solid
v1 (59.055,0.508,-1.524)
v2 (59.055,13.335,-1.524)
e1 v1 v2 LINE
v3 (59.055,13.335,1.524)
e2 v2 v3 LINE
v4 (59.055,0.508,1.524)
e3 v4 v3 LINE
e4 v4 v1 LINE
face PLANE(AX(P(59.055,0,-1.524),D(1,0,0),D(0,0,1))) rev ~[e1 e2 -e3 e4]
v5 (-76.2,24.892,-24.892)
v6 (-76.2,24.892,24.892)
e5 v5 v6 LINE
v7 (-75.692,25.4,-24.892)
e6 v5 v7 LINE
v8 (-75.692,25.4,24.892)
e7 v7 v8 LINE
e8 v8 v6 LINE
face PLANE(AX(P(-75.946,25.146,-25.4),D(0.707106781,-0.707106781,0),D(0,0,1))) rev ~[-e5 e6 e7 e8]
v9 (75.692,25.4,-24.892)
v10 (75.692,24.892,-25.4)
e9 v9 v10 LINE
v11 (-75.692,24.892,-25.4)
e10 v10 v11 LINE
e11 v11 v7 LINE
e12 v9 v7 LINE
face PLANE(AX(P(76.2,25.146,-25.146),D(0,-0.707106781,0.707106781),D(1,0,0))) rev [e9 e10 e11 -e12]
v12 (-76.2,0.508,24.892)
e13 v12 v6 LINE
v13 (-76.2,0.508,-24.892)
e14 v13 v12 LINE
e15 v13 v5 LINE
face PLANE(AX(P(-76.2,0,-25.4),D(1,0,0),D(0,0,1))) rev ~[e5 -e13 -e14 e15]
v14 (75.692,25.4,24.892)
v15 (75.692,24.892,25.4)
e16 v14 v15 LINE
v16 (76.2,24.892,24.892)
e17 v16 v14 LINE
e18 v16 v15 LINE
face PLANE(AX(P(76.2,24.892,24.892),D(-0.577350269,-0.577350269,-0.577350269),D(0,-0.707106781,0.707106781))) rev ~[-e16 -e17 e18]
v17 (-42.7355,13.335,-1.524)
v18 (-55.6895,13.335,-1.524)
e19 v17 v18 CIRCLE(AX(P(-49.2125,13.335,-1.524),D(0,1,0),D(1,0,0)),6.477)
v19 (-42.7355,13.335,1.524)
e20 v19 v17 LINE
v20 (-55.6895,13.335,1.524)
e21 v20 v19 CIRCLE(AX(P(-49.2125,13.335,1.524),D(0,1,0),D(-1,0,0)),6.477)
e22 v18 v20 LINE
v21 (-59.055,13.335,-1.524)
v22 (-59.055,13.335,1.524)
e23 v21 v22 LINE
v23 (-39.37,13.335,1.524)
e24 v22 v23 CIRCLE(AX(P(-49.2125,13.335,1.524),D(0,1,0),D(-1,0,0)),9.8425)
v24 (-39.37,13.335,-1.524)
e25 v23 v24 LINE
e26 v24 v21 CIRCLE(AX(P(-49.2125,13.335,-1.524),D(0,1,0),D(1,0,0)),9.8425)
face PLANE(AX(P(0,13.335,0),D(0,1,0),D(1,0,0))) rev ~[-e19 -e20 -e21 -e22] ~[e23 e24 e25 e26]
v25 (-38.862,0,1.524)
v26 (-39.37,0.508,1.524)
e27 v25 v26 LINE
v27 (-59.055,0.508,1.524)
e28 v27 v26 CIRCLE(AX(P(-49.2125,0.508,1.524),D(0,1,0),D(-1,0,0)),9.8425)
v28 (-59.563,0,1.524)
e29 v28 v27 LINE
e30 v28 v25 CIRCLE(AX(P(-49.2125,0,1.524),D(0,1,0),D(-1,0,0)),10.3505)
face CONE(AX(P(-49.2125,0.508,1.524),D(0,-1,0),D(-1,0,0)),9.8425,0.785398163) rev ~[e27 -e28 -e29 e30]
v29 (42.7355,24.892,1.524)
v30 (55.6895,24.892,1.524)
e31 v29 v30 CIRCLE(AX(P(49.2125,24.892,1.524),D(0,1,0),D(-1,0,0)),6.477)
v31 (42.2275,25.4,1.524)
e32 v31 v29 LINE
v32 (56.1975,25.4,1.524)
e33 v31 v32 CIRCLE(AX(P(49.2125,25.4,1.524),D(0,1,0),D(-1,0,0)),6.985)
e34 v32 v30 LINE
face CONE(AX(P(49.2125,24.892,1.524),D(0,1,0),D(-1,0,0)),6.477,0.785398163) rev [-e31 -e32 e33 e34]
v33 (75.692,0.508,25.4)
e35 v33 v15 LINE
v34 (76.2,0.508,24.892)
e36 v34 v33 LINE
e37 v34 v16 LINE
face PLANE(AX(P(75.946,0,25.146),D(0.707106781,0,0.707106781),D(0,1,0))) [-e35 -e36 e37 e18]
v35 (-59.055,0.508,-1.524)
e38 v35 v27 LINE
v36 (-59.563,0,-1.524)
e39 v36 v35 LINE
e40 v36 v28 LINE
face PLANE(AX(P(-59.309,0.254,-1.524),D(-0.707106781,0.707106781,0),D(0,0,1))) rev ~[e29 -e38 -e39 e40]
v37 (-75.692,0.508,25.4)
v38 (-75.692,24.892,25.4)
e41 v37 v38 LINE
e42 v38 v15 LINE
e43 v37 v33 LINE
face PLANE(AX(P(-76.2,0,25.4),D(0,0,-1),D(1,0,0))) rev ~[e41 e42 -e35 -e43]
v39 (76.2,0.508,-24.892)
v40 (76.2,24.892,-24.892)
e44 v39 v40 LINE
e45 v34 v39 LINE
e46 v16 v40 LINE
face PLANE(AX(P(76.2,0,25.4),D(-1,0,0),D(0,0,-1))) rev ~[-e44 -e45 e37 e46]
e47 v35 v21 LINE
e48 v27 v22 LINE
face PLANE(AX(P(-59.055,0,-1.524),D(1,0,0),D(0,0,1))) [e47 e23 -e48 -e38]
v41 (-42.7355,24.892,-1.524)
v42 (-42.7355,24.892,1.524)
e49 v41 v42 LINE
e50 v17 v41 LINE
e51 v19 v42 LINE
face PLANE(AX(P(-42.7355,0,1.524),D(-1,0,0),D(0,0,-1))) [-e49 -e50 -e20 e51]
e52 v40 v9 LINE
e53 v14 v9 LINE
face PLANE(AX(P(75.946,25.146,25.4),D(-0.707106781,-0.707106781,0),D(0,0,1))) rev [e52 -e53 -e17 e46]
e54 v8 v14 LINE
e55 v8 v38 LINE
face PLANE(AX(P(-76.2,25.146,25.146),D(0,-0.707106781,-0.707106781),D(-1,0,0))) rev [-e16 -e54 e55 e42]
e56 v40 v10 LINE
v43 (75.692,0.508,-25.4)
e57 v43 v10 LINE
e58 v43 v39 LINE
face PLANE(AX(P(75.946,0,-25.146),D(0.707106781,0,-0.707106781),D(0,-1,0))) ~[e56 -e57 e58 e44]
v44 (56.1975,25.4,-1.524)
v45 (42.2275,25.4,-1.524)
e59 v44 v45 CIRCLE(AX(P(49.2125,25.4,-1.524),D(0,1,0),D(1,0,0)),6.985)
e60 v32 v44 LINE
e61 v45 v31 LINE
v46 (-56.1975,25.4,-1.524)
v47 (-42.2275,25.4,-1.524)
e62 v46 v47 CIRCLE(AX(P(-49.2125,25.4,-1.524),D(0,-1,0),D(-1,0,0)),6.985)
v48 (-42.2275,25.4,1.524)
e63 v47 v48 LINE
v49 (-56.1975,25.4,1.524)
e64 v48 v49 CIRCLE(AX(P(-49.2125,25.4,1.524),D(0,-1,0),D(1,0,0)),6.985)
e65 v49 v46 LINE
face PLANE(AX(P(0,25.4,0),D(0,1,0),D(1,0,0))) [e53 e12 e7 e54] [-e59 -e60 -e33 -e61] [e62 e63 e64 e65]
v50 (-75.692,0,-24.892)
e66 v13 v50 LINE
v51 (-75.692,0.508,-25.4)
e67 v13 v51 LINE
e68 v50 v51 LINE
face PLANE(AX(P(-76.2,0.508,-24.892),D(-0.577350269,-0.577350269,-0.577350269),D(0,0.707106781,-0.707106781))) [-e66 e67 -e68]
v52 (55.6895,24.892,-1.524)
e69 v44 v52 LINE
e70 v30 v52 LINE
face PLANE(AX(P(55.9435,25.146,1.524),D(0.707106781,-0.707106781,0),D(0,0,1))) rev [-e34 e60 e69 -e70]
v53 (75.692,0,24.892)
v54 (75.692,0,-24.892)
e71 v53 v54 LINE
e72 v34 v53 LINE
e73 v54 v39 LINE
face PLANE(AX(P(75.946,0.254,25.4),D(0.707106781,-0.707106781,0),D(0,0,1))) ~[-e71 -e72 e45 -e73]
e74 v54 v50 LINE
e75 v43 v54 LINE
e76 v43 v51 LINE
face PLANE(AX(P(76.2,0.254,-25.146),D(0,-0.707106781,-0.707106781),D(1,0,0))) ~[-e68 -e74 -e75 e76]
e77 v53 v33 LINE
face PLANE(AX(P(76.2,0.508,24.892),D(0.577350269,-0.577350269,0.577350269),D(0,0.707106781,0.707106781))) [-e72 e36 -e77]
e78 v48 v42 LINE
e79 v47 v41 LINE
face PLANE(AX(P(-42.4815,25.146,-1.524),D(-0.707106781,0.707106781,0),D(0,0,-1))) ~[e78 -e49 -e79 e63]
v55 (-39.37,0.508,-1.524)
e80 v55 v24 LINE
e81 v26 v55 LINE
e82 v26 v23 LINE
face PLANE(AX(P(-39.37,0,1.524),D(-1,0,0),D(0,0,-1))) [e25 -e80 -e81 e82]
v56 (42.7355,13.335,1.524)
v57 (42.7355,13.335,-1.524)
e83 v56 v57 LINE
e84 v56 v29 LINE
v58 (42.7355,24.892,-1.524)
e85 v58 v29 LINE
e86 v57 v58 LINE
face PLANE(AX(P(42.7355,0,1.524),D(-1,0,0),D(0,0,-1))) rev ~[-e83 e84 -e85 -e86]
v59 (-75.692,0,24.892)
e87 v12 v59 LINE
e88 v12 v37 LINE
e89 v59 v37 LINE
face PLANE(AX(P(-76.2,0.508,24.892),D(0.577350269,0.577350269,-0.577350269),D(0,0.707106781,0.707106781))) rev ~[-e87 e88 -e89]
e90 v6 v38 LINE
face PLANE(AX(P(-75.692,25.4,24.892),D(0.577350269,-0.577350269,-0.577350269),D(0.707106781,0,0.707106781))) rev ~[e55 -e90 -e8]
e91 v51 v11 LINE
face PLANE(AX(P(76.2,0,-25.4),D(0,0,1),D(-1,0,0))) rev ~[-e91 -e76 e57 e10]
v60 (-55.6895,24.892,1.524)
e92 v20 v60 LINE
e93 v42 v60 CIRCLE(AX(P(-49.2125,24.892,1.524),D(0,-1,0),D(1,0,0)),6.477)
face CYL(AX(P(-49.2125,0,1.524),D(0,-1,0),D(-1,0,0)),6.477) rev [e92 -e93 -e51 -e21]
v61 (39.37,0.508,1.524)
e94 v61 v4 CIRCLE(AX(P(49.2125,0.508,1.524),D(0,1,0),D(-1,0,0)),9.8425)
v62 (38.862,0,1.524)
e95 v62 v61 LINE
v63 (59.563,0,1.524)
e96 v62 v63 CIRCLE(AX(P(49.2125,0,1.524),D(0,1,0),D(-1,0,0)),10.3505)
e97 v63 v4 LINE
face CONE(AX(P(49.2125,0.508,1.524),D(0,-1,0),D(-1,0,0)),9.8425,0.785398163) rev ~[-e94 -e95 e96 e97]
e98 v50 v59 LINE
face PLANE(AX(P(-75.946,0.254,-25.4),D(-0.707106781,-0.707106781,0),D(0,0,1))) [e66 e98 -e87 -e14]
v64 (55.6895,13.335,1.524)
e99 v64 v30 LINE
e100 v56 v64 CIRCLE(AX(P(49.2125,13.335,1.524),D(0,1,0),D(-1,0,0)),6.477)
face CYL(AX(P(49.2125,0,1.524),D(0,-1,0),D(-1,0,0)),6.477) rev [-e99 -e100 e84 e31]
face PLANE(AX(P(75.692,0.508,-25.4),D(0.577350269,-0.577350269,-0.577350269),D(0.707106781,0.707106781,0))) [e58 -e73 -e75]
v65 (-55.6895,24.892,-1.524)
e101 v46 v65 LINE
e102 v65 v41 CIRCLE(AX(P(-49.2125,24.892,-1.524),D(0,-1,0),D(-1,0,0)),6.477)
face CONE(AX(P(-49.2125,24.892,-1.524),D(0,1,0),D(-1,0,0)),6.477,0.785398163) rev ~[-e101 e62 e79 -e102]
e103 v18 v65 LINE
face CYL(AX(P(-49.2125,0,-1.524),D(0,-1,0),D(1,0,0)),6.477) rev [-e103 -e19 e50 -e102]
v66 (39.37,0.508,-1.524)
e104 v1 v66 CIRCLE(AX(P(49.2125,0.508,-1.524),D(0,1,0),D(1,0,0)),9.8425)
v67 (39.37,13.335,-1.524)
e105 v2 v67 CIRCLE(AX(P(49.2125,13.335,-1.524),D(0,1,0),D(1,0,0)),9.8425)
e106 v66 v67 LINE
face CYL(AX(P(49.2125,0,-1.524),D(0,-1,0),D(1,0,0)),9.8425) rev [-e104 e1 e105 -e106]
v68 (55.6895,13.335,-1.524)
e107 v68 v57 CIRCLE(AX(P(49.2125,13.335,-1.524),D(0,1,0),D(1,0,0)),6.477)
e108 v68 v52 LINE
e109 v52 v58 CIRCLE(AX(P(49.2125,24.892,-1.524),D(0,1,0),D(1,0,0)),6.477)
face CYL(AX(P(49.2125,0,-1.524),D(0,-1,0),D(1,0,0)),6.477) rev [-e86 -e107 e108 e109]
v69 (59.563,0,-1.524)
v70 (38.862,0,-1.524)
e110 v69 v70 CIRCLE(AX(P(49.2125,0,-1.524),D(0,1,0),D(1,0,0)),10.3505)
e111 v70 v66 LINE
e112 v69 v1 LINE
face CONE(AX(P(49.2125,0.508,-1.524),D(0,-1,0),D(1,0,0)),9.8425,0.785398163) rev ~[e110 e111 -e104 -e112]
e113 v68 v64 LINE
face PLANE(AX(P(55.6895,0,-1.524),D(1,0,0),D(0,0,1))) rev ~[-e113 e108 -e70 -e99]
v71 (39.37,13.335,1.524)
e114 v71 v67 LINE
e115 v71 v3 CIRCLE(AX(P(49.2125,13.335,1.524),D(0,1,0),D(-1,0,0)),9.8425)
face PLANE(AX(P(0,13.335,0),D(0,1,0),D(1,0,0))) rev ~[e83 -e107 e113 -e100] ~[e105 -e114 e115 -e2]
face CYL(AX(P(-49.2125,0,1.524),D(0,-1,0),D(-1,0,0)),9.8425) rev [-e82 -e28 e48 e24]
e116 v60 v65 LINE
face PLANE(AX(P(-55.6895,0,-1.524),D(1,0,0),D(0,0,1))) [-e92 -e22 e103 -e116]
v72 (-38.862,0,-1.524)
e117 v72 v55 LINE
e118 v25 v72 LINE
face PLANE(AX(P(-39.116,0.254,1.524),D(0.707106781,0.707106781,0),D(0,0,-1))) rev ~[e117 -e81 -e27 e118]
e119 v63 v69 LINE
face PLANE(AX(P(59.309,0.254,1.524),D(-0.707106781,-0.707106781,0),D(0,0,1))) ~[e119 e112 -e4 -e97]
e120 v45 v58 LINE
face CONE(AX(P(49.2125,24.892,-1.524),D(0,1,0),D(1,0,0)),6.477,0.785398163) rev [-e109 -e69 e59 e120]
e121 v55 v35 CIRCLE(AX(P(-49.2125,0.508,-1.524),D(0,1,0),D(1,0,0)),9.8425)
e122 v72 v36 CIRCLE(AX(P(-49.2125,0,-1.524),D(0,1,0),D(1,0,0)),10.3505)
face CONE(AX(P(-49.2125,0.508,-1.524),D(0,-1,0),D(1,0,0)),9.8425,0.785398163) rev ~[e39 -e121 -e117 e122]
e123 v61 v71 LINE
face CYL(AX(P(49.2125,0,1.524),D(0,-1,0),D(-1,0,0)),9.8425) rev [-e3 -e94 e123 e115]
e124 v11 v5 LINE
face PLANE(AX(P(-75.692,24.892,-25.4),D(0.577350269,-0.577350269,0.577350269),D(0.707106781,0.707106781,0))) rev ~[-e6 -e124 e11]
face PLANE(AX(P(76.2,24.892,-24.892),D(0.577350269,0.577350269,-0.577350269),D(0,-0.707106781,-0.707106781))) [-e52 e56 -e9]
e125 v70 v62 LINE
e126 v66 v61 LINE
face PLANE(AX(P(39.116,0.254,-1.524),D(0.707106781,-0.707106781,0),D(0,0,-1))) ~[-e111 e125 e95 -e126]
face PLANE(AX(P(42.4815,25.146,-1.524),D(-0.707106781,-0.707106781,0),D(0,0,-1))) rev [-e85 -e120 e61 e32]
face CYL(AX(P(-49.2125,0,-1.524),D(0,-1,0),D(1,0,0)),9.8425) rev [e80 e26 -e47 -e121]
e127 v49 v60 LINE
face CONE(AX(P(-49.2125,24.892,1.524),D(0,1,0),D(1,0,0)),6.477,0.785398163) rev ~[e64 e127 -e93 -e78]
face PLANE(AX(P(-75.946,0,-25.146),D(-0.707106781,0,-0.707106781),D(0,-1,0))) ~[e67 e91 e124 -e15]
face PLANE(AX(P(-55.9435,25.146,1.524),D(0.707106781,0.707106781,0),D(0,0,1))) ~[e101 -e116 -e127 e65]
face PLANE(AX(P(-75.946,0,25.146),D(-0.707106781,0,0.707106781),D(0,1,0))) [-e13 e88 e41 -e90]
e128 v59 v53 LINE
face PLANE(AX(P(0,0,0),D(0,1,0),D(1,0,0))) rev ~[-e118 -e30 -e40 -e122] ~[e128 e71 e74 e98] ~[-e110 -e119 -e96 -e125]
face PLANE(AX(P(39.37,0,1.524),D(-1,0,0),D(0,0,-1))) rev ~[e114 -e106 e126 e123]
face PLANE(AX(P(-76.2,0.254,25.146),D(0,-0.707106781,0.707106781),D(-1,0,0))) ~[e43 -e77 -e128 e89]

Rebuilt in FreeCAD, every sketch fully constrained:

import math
import FreeCAD as App
import Part
import Sketcher

V = App.Vector
Q = App.Units.Quantity


def edges_at(feature, points):
    """Names of the edges that pass closest to the given points."""
    edges = feature.Shape.Edges
    near = lambda p: min(range(len(edges)), key=lambda i: edges[i].distToShape(Part.Vertex(*p))[0])
    return sorted({f"Edge{near(p) + 1}" for p in points})

doc = App.newDocument("Part")
params = doc.addObject("Spreadsheet::Sheet", "Params")
for row, (alias, value) in enumerate([
    ("sketch1_width", "6 in"),
    ("sketch1_height", "2 in"),
    ("pad1_length", "1 in"),
    ("sketch2_radius", "0.255 in"),
    ("sketch2_height", "0.12 in"),
    ("sketch3_radius", "0.255 in"),
    ("sketch3_height", "0.12 in"),
    ("pocket2_length", "0.525 in"),
    ("chamfer_size", "0.02 in"),
], start=1):
    params.set(f"A{row}", alias)
    params.set(f"B{row}", "=" + value)
    params.setAlias(f"B{row}", alias)

body = doc.addObject("PartDesign::Body", "Body")

sketch1 = body.newObject("Sketcher::SketchObject", "Sketch")
sketch1.AttachmentSupport = (doc.getObject("XZ_Plane"), [""])
sketch1.MapMode = "FlatFace"
sketch1.addGeometry([
    Part.LineSegment(V(76, 25, 0), V(76, -25, 0)),
    Part.LineSegment(V(76, -25, 0), V(-76, -25, 0)),
    Part.LineSegment(V(-76, -25, 0), V(-76, 25, 0)),
    Part.LineSegment(V(-76, 25, 0), V(76, 25, 0)),
], False)
sketch1.addConstraint([
    Sketcher.Constraint("Coincident", 0, 2, 1, 1),
    Sketcher.Constraint("Coincident", 1, 2, 2, 1),
    Sketcher.Constraint("Coincident", 2, 2, 3, 1),
    Sketcher.Constraint("Coincident", 3, 2, 0, 1),
    Sketcher.Constraint("Vertical", 0),
    Sketcher.Constraint("Horizontal", 1),
    Sketcher.Constraint("Vertical", 2),
    Sketcher.Constraint("Horizontal", 3),
    Sketcher.Constraint("Symmetric", 0, 2, 2, 2, -1, 1),
    Sketcher.Constraint("DistanceX", 1, 2, 1, 1, Q("6 in")),
    Sketcher.Constraint("DistanceY", 0, 2, 0, 1, Q("2 in")),
])
sketch1.setExpression("Constraints[9]", "Params.sketch1_width")
sketch1.setExpression("Constraints[10]", "Params.sketch1_height")
pad1 = body.newObject("PartDesign::Pad", "Pad")
pad1.Profile = sketch1
pad1.setExpression("Length", "Params.pad1_length")
pad1.Reversed = True

sketch2 = body.newObject("Sketcher::SketchObject", "Sketch001")
sketch2.AttachmentSupport = (doc.getObject("XZ_Plane"), [""])
sketch2.MapMode = "FlatFace"
sketch2.addGeometry([
    Part.ArcOfCircle(Part.Circle(V(-49.2, -1.5, 0), V(0, 0, 1), 6.5), math.radians(180), math.radians(360)),
    Part.LineSegment(V(-55.7, -1.5, 0), V(-55.7, 1.5, 0)),
    Part.ArcOfCircle(Part.Circle(V(-49.2, 1.5, 0), V(0, 0, 1), 6.5), math.radians(0), math.radians(180)),
    Part.LineSegment(V(-42.7, 1.5, 0), V(-42.7, -1.5, 0)),
    Part.LineSegment(V(55.7, 1.5, 0), V(55.7, -1.5, 0)),
    Part.ArcOfCircle(Part.Circle(V(49.2, -1.5, 0), V(0, 0, 1), 6.5), math.radians(180), math.radians(360)),
    Part.LineSegment(V(42.7, -1.5, 0), V(42.7, 1.5, 0)),
    Part.ArcOfCircle(Part.Circle(V(49.2, 1.5, 0), V(0, 0, 1), 6.5), math.radians(0), math.radians(180)),
], False)
sketch2.addConstraint([
    Sketcher.Constraint("Tangent", 0, 1, 1, 1),
    Sketcher.Constraint("Tangent", 1, 2, 2, 2),
    Sketcher.Constraint("Tangent", 2, 1, 3, 1),
    Sketcher.Constraint("Tangent", 3, 2, 0, 2),
    Sketcher.Constraint("Tangent", 4, 2, 5, 2),
    Sketcher.Constraint("Tangent", 5, 1, 6, 1),
    Sketcher.Constraint("Tangent", 6, 2, 7, 2),
    Sketcher.Constraint("Tangent", 7, 1, 4, 1),
    Sketcher.Constraint("Vertical", 1),
    Sketcher.Constraint("Vertical", 3),
    Sketcher.Constraint("Vertical", 4),
    Sketcher.Constraint("Vertical", 6),
    Sketcher.Constraint("Equal", 2, 5),
    Sketcher.Constraint("Symmetric", 2, 3, 5, 3, -1, 1),
    Sketcher.Constraint("Horizontal", 0, 3, 5, 3),
    Sketcher.Constraint("Horizontal", 2, 3, 7, 3),
    Sketcher.Constraint("Radius", 0, Q("0.255 in")),
    Sketcher.Constraint("DistanceX", 0, 3, -1, 1, Q("1.9375 in")),
    Sketcher.Constraint("DistanceY", 1, 1, 1, 2, Q("0.12 in")),
])
sketch2.setExpression("Constraints[16]", "Params.sketch2_radius")
sketch2.setExpression("Constraints[18]", "Params.sketch2_height")
pocket1 = body.newObject("PartDesign::Pocket", "Pocket")
pocket1.Profile = sketch2
pocket1.Type = "ThroughAll"

sketch3 = body.newObject("Sketcher::SketchObject", "Sketch002")
sketch3.AttachmentSupport = (doc.getObject("XZ_Plane"), [""])
sketch3.MapMode = "FlatFace"
sketch3.addGeometry([
    Part.ArcOfCircle(Part.Circle(V(-49.2, -1.5, 0), V(0, 0, 1), 9.8), math.radians(180), math.radians(360)),
    Part.LineSegment(V(-59.1, -1.5, 0), V(-59.1, 1.5, 0)),
    Part.ArcOfCircle(Part.Circle(V(-49.2, 1.5, 0), V(0, 0, 1), 9.8), math.radians(0), math.radians(180)),
    Part.LineSegment(V(-39.4, 1.5, 0), V(-39.4, -1.5, 0)),
    Part.LineSegment(V(-55.7, 1.5, 0), V(-55.7, -1.5, 0)),
    Part.ArcOfCircle(Part.Circle(V(-49.2, -1.5, 0), V(0, 0, 1), 6.5), math.radians(180), math.radians(360)),
    Part.LineSegment(V(-42.7, -1.5, 0), V(-42.7, 1.5, 0)),
    Part.ArcOfCircle(Part.Circle(V(-49.2, 1.5, 0), V(0, 0, 1), 6.5), math.radians(0), math.radians(180)),
    Part.LineSegment(V(39.4, -1.5, 0), V(39.4, 1.5, 0)),
    Part.ArcOfCircle(Part.Circle(V(49.2, 1.5, 0), V(0, 0, 1), 9.8), math.radians(0), math.radians(180)),
    Part.LineSegment(V(59.1, 1.5, 0), V(59.1, -1.5, 0)),
    Part.ArcOfCircle(Part.Circle(V(49.2, -1.5, 0), V(0, 0, 1), 9.8), math.radians(180), math.radians(360)),
    Part.ArcOfCircle(Part.Circle(V(49.2, -1.5, 0), V(0, 0, 1), 6.5), math.radians(180), math.radians(360)),
    Part.LineSegment(V(55.7, -1.5, 0), V(55.7, 1.5, 0)),
    Part.ArcOfCircle(Part.Circle(V(49.2, 1.5, 0), V(0, 0, 1), 6.5), math.radians(0), math.radians(180)),
    Part.LineSegment(V(42.7, 1.5, 0), V(42.7, -1.5, 0)),
], False)
sketch3.addConstraint([
    Sketcher.Constraint("Tangent", 0, 1, 1, 1),
    Sketcher.Constraint("Tangent", 1, 2, 2, 2),
    Sketcher.Constraint("Tangent", 2, 1, 3, 1),
    Sketcher.Constraint("Tangent", 3, 2, 0, 2),
    Sketcher.Constraint("Tangent", 4, 2, 5, 1),
    Sketcher.Constraint("Tangent", 5, 2, 6, 1),
    Sketcher.Constraint("Tangent", 6, 2, 7, 1),
    Sketcher.Constraint("Tangent", 7, 2, 4, 1),
    Sketcher.Constraint("Tangent", 8, 2, 9, 2),
    Sketcher.Constraint("Tangent", 9, 1, 10, 1),
    Sketcher.Constraint("Tangent", 10, 2, 11, 2),
    Sketcher.Constraint("Tangent", 11, 1, 8, 1),
    Sketcher.Constraint("Tangent", 12, 2, 13, 1),
    Sketcher.Constraint("Tangent", 13, 2, 14, 1),
    Sketcher.Constraint("Tangent", 14, 2, 15, 1),
    Sketcher.Constraint("Tangent", 15, 2, 12, 1),
    Sketcher.Constraint("Vertical", 1),
    Sketcher.Constraint("Vertical", 3),
    Sketcher.Constraint("Vertical", 4),
    Sketcher.Constraint("Vertical", 6),
    Sketcher.Constraint("Vertical", 8),
    Sketcher.Constraint("Vertical", 10),
    Sketcher.Constraint("Vertical", 13),
    Sketcher.Constraint("Vertical", 15),
    Sketcher.Constraint("Coincident", 5, 3, 0, 3),
    Sketcher.Constraint("Coincident", 12, 3, 11, 3),
    Sketcher.Constraint("Equal", 2, 9),
    Sketcher.Constraint("Equal", 7, 12),
    Sketcher.Constraint("Symmetric", 0, 3, 9, 3, -1, 1),
    Sketcher.Constraint("Horizontal", 7, 3, 9, 3),
    Sketcher.Constraint("Horizontal", 5, 3, 11, 3),
    Sketcher.Constraint("Horizontal", 7, 3, 14, 3),
    Sketcher.Constraint("Horizontal", 14, 3, 1, 2),
    Sketcher.Constraint("Radius", 5, Q("0.255 in")),
    Sketcher.Constraint("Radius", 0, Q("0.3875 in")),
    Sketcher.Constraint("DistanceX", 0, 3, -1, 1, Q("1.9375 in")),
    Sketcher.Constraint("DistanceY", 1, 1, 1, 2, Q("0.12 in")),
])
sketch3.setExpression("Constraints[33]", "Params.sketch3_radius")
sketch3.setExpression("Constraints[36]", "Params.sketch3_height")
pocket2 = body.newObject("PartDesign::Pocket", "Pocket001")
pocket2.Profile = sketch3
pocket2.setExpression("Length", "Params.pocket2_length")
doc.recompute()

chamfer = body.newObject("PartDesign::Chamfer", "Chamfer")
chamfer.Base = (pocket2, edges_at(pocket2, [
    (0, 0, 25.4),
    (76.2, 0, 0),
    (0, 0, -25.4),
    (-76.2, 0, 0),
    (-76.2, 12.7, 25.4),
    (-76.2, 25.4, 0),
    (-76.2, 12.7, -25.4),
    (0, 25.4, -25.4),
    (0, 25.4, 25.4),
    (76.2, 25.4, 0),
    (76.2, 12.7, 25.4),
    (76.2, 12.7, -25.4),
    (49.212, 0, -11.367),
    (39.37, 0, 0),
    (49.212, 0, 11.367),
    (59.055, 0, 0),
    (-39.37, 0, 0),
    (-49.212, 0, -11.367),
    (-59.055, 0, 0),
    (-49.212, 0, 11.367),
    (-55.69, 25.4, 0),
    (-49.212, 25.4, -8.001),
    (-42.736, 25.4, 0),
    (-49.212, 25.4, 8.001),
    (42.736, 25.4, 0),
    (49.212, 25.4, -8.001),
    (55.69, 25.4, 0),
    (49.212, 25.4, 8.001),
]))
chamfer.setExpression("Size", "Params.chamfer_size")

doc.recompute()
